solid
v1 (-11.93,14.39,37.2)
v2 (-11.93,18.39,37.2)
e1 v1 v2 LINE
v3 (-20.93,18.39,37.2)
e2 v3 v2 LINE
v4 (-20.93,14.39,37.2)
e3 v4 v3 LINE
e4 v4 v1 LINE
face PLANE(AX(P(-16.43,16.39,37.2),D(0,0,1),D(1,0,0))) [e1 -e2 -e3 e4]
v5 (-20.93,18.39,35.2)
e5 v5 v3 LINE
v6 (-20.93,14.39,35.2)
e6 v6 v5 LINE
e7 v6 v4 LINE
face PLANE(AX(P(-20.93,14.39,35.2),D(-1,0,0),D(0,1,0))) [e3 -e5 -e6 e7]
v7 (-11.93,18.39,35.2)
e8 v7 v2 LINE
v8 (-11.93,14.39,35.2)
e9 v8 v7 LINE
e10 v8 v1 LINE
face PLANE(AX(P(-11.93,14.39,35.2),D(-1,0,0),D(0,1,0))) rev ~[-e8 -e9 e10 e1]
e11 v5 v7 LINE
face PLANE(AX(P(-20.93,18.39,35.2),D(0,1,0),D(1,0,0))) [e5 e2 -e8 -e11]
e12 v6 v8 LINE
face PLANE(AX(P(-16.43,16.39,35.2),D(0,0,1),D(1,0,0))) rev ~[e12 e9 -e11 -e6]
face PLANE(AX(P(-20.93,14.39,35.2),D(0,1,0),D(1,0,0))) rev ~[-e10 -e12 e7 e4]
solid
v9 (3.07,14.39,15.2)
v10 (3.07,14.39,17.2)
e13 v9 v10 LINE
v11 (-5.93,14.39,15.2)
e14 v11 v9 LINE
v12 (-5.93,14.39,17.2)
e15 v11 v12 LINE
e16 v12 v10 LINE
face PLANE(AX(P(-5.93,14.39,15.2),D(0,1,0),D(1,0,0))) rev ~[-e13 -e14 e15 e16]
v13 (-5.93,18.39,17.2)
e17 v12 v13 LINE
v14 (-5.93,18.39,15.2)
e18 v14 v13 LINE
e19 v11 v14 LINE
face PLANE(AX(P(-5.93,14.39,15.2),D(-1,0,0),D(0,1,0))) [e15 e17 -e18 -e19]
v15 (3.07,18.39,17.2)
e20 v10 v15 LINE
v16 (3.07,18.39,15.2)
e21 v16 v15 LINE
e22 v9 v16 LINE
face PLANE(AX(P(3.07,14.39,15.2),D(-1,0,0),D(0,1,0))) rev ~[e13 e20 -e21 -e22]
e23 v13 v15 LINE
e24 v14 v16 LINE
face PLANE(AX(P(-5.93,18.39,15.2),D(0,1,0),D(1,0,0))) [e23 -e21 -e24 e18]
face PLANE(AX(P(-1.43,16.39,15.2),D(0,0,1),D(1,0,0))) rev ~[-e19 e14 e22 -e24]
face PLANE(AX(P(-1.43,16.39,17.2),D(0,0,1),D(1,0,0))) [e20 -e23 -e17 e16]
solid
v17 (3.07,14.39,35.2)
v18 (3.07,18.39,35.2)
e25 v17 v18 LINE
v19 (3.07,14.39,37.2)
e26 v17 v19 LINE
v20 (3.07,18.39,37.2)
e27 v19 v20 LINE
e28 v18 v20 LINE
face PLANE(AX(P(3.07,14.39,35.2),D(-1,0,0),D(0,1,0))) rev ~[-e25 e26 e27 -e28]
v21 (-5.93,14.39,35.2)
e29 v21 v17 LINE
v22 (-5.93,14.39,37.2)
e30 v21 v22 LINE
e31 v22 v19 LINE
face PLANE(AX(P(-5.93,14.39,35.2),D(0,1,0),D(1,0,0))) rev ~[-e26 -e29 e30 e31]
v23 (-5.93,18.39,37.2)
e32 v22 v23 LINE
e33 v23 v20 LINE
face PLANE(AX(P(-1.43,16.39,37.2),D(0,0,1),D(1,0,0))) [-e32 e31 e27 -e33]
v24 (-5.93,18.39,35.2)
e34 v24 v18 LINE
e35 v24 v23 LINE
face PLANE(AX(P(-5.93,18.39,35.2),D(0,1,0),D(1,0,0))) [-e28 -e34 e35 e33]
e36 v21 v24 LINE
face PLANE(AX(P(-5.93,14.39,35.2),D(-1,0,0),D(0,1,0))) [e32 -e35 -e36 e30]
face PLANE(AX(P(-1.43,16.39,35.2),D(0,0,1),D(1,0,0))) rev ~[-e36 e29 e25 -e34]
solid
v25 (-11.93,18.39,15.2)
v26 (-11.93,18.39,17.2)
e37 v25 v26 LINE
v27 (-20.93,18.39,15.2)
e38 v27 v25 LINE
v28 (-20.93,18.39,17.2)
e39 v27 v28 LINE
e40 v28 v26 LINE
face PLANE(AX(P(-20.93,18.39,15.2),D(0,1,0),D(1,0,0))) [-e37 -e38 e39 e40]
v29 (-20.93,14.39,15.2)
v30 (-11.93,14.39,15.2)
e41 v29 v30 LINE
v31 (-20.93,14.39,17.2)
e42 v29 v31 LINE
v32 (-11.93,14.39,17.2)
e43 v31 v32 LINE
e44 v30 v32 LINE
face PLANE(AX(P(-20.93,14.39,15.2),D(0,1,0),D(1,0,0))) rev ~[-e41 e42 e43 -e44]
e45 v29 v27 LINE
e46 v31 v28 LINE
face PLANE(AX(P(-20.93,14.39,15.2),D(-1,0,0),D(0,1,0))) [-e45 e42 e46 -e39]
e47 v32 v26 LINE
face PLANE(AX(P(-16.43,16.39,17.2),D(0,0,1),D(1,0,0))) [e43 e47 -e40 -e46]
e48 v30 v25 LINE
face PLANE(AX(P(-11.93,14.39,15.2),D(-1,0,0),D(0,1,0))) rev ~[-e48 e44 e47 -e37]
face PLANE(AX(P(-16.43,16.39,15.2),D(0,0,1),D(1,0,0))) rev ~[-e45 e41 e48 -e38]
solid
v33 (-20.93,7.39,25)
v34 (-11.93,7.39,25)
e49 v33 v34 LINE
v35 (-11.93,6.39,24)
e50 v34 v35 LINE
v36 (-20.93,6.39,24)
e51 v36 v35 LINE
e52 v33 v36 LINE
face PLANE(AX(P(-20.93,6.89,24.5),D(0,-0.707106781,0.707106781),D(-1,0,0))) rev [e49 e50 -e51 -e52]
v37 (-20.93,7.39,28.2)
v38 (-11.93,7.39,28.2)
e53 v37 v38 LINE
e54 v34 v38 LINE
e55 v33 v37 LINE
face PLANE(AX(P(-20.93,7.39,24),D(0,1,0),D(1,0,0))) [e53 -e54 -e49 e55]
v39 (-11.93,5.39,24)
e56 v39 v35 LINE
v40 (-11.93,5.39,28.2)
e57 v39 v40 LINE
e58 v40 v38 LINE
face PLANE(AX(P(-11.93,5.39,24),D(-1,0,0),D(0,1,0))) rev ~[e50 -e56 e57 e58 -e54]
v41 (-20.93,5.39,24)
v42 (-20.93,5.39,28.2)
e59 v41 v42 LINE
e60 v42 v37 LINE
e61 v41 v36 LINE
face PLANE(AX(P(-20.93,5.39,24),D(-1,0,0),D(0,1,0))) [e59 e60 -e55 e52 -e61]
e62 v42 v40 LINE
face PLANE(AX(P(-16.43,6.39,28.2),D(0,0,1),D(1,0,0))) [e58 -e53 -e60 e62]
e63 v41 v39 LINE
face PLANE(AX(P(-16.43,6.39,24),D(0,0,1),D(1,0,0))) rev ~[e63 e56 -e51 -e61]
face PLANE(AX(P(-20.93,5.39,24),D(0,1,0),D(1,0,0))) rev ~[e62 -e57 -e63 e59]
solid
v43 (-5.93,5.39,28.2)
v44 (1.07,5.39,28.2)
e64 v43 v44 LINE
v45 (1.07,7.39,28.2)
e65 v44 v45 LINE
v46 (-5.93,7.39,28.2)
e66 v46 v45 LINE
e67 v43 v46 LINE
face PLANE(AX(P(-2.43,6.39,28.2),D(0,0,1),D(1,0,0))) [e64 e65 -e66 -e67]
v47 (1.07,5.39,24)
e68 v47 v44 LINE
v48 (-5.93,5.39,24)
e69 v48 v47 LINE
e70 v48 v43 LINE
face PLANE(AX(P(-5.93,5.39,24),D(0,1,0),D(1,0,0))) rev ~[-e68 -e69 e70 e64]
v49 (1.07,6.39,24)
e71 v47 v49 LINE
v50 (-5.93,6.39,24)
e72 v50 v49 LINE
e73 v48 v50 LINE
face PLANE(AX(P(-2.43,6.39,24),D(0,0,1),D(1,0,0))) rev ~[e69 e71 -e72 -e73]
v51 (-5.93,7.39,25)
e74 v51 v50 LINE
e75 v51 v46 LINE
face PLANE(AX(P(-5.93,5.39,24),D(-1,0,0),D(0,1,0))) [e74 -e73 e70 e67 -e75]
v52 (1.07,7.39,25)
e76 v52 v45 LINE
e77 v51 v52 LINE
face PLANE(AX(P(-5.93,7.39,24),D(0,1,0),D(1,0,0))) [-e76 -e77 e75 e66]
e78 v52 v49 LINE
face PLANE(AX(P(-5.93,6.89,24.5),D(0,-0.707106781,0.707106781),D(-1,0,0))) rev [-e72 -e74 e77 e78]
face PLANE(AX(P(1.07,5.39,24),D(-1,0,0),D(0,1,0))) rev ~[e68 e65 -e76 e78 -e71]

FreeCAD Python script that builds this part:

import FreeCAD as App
import Part
import Sketcher

V = App.Vector


def edges_at(feature, points):
    """Names of the edges that pass closest to the given points."""
    edges = feature.Shape.Edges
    near = lambda p: min(range(len(edges)), key=lambda i: edges[i].distToShape(Part.Vertex(*p))[0])
    return sorted({f"Edge{near(p) + 1}" for p in points})

doc = App.newDocument("Part")
params = doc.addObject("Spreadsheet::Sheet", "Params")
for row, (alias, value) in enumerate([
    ("sketch1_width", "7 mm"),
    ("sketch1_height", "2 mm"),
    ("pad1_length", "4.2 mm"),
    ("chamfer_size", "1 mm"),
    ("sketch2_width", "9 mm"),
    ("sketch2_height", "4 mm"),
    ("pad2_length", "2 mm"),
    ("sketch3_width", "9 mm"),
    ("sketch3_height", "4 mm"),
    ("pad3_length", "2 mm"),
    ("sketch4_width", "9 mm"),
    ("sketch4_height", "4 mm"),
    ("pad4_length", "2 mm"),
    ("sketch5_width", "9 mm"),
    ("sketch5_height", "4 mm"),
    ("pad5_length", "2 mm"),
    ("sketch6_width", "9 mm"),
    ("sketch6_height", "2 mm"),
    ("pad6_length", "4.2 mm"),
    ("chamfer2_size", "1 mm"),
], start=1):
    params.set(f"A{row}", alias)
    params.set(f"B{row}", "=" + value)
    params.setAlias(f"B{row}", alias)

body = doc.addObject("PartDesign::Body", "Body")

# Sketch on XY plane
sketch1 = doc.addObject("Sketcher::SketchObject", "Sketch")
body.addObject(sketch1)
sketch1.AttachmentSupport = (doc.XY_Plane, [""])
sketch1.MapMode = "FlatFace"
sketch1.AttachmentOffset = App.Placement(V(0, 0, 24), App.Rotation())
sketch1.addGeometry([
    Part.LineSegment(V(-5.93, 7.39, 0), V(-5.93, 5.39, 0)),
    Part.LineSegment(V(-5.93, 5.39, 0), V(1.07, 5.39, 0)),
    Part.LineSegment(V(1.07, 5.39, 0), V(1.07, 7.39, 0)),
    Part.LineSegment(V(1.07, 7.39, 0), V(-5.93, 7.39, 0)),
], False)
sketch1.addConstraint([
    Sketcher.Constraint("Coincident", 0, 2, 1, 1),
    Sketcher.Constraint("Coincident", 1, 2, 2, 1),
    Sketcher.Constraint("Coincident", 2, 2, 3, 1),
    Sketcher.Constraint("Coincident", 3, 2, 0, 1),
    Sketcher.Constraint("Vertical", 0),
    Sketcher.Constraint("Horizontal", 1),
    Sketcher.Constraint("Vertical", 2),
    Sketcher.Constraint("Horizontal", 3),
    Sketcher.Constraint("DistanceX", 1, 1, 1, 2, 7.0),
    Sketcher.Constraint("DistanceY", 0, 2, 0, 1, 2.0),
    Sketcher.Constraint("DistanceX", 0, 2, -1, 1, 5.93),
    Sketcher.Constraint("DistanceY", -1, 1, 0, 2, 5.39),
])
sketch1.setExpression("Constraints[8]", "Params.sketch1_width")
sketch1.setExpression("Constraints[9]", "Params.sketch1_height")
pad1 = doc.addObject("PartDesign::Pad", "Pad")
body.addObject(pad1)
pad1.Profile = sketch1
pad1.setExpression("Length", "Params.pad1_length")
doc.recompute()

chamfer = doc.addObject("PartDesign::Chamfer", "Chamfer")
body.addObject(chamfer)
chamfer.Base = (pad1, edges_at(pad1, [(-2.43, 7.39, 24)]))
chamfer.setExpression("Size", "Params.chamfer_size")
body2 = doc.addObject("PartDesign::Body", "Body001")

# Sketch on XY plane
sketch2 = doc.addObject("Sketcher::SketchObject", "Sketch001")
body2.addObject(sketch2)
sketch2.AttachmentSupport = (doc.getObject("XY_Plane001"), [""])
sketch2.MapMode = "FlatFace"
sketch2.AttachmentOffset = App.Placement(V(0, 0, 35.2), App.Rotation())
sketch2.addGeometry([
    Part.LineSegment(V(-20.93, 18.39, 0), V(-20.93, 14.39, 0)),
    Part.LineSegment(V(-20.93, 14.39, 0), V(-11.93, 14.39, 0)),
    Part.LineSegment(V(-11.93, 14.39, 0), V(-11.93, 18.39, 0)),
    Part.LineSegment(V(-11.93, 18.39, 0), V(-20.93, 18.39, 0)),
], False)
sketch2.addConstraint([
    Sketcher.Constraint("Coincident", 0, 2, 1, 1),
    Sketcher.Constraint("Coincident", 1, 2, 2, 1),
    Sketcher.Constraint("Coincident", 2, 2, 3, 1),
    Sketcher.Constraint("Coincident", 3, 2, 0, 1),
    Sketcher.Constraint("Vertical", 0),
    Sketcher.Constraint("Horizontal", 1),
    Sketcher.Constraint("Vertical", 2),
    Sketcher.Constraint("Horizontal", 3),
    Sketcher.Constraint("DistanceX", 1, 1, 1, 2, 9.0),
    Sketcher.Constraint("DistanceY", 0, 2, 0, 1, 4.0),
    Sketcher.Constraint("DistanceX", 0, 2, -1, 1, 20.93),
    Sketcher.Constraint("DistanceY", -1, 1, 0, 2, 14.39),
])
sketch2.setExpression("Constraints[8]", "Params.sketch2_width")
sketch2.setExpression("Constraints[9]", "Params.sketch2_height")
pad2 = doc.addObject("PartDesign::Pad", "Pad001")
body2.addObject(pad2)
pad2.Profile = sketch2
pad2.setExpression("Length", "Params.pad2_length")
body3 = doc.addObject("PartDesign::Body", "Body002")

# Sketch on XY plane
sketch3 = doc.addObject("Sketcher::SketchObject", "Sketch002")
body3.addObject(sketch3)
sketch3.AttachmentSupport = (doc.getObject("XY_Plane002"), [""])
sketch3.MapMode = "FlatFace"
sketch3.AttachmentOffset = App.Placement(V(0, 0, 35.2), App.Rotation())
sketch3.addGeometry([
    Part.LineSegment(V(-5.93, 18.39, 0), V(-5.93, 14.39, 0)),
    Part.LineSegment(V(-5.93, 14.39, 0), V(3.07, 14.39, 0)),
    Part.LineSegment(V(3.07, 14.39, 0), V(3.07, 18.39, 0)),
    Part.LineSegment(V(3.07, 18.39, 0), V(-5.93, 18.39, 0)),
], False)
sketch3.addConstraint([
    Sketcher.Constraint("Coincident", 0, 2, 1, 1),
    Sketcher.Constraint("Coincident", 1, 2, 2, 1),
    Sketcher.Constraint("Coincident", 2, 2, 3, 1),
    Sketcher.Constraint("Coincident", 3, 2, 0, 1),
    Sketcher.Constraint("Vertical", 0),
    Sketcher.Constraint("Horizontal", 1),
    Sketcher.Constraint("Vertical", 2),
    Sketcher.Constraint("Horizontal", 3),
    Sketcher.Constraint("DistanceX", 1, 1, 1, 2, 9.0),
    Sketcher.Constraint("DistanceY", 0, 2, 0, 1, 4.0),
    Sketcher.Constraint("DistanceX", 0, 2, -1, 1, 5.93),
    Sketcher.Constraint("DistanceY", -1, 1, 0, 2, 14.39),
])
sketch3.setExpression("Constraints[8]", "Params.sketch3_width")
sketch3.setExpression("Constraints[9]", "Params.sketch3_height")
pad3 = doc.addObject("PartDesign::Pad", "Pad002")
body3.addObject(pad3)
pad3.Profile = sketch3
pad3.setExpression("Length", "Params.pad3_length")
body4 = doc.addObject("PartDesign::Body", "Body003")

# Sketch on XY plane
sketch4 = doc.addObject("Sketcher::SketchObject", "Sketch003")
body4.addObject(sketch4)
sketch4.AttachmentSupport = (doc.getObject("XY_Plane003"), [""])
sketch4.MapMode = "FlatFace"
sketch4.AttachmentOffset = App.Placement(V(0, 0, 15.2), App.Rotation())
sketch4.addGeometry([
    Part.LineSegment(V(-5.93, 18.39, 0), V(-5.93, 14.39, 0)),
    Part.LineSegment(V(-5.93, 14.39, 0), V(3.07, 14.39, 0)),
    Part.LineSegment(V(3.07, 14.39, 0), V(3.07, 18.39, 0)),
    Part.LineSegment(V(3.07, 18.39, 0), V(-5.93, 18.39, 0)),
], False)
sketch4.addConstraint([
    Sketcher.Constraint("Coincident", 0, 2, 1, 1),
    Sketcher.Constraint("Coincident", 1, 2, 2, 1),
    Sketcher.Constraint("Coincident", 2, 2, 3, 1),
    Sketcher.Constraint("Coincident", 3, 2, 0, 1),
    Sketcher.Constraint("Vertical", 0),
    Sketcher.Constraint("Horizontal", 1),
    Sketcher.Constraint("Vertical", 2),
    Sketcher.Constraint("Horizontal", 3),
    Sketcher.Constraint("DistanceX", 1, 1, 1, 2, 9.0),
    Sketcher.Constraint("DistanceY", 0, 2, 0, 1, 4.0),
    Sketcher.Constraint("DistanceX", 0, 2, -1, 1, 5.93),
    Sketcher.Constraint("DistanceY", -1, 1, 0, 2, 14.39),
])
sketch4.setExpression("Constraints[8]", "Params.sketch4_width")
sketch4.setExpression("Constraints[9]", "Params.sketch4_height")
pad4 = doc.addObject("PartDesign::Pad", "Pad003")
body4.addObject(pad4)
pad4.Profile = sketch4
pad4.setExpression("Length", "Params.pad4_length")
body5 = doc.addObject("PartDesign::Body", "Body004")

# Sketch on XY plane
sketch5 = doc.addObject("Sketcher::SketchObject", "Sketch004")
body5.addObject(sketch5)
sketch5.AttachmentSupport = (doc.getObject("XY_Plane004"), [""])
sketch5.MapMode = "FlatFace"
sketch5.AttachmentOffset = App.Placement(V(0, 0, 15.2), App.Rotation())
sketch5.addGeometry([
    Part.LineSegment(V(-20.93, 18.39, 0), V(-20.93, 14.39, 0)),
    Part.LineSegment(V(-20.93, 14.39, 0), V(-11.93, 14.39, 0)),
    Part.LineSegment(V(-11.93, 14.39, 0), V(-11.93, 18.39, 0)),
    Part.LineSegment(V(-11.93, 18.39, 0), V(-20.93, 18.39, 0)),
], False)
sketch5.addConstraint([
    Sketcher.Constraint("Coincident", 0, 2, 1, 1),
    Sketcher.Constraint("Coincident", 1, 2, 2, 1),
    Sketcher.Constraint("Coincident", 2, 2, 3, 1),
    Sketcher.Constraint("Coincident", 3, 2, 0, 1),
    Sketcher.Constraint("Vertical", 0),
    Sketcher.Constraint("Horizontal", 1),
    Sketcher.Constraint("Vertical", 2),
    Sketcher.Constraint("Horizontal", 3),
    Sketcher.Constraint("DistanceX", 1, 1, 1, 2, 9.0),
    Sketcher.Constraint("DistanceY", 0, 2, 0, 1, 4.0),
    Sketcher.Constraint("DistanceX", 0, 2, -1, 1, 20.93),
    Sketcher.Constraint("DistanceY", -1, 1, 0, 2, 14.39),
])
sketch5.setExpression("Constraints[8]", "Params.sketch5_width")
sketch5.setExpression("Constraints[9]", "Params.sketch5_height")
pad5 = doc.addObject("PartDesign::Pad", "Pad004")
body5.addObject(pad5)
pad5.Profile = sketch5
pad5.setExpression("Length", "Params.pad5_length")
body6 = doc.addObject("PartDesign::Body", "Body005")
body6.AllowCompound = True

# Sketch on XY plane
sketch6 = doc.addObject("Sketcher::SketchObject", "Sketch005")
body6.addObject(sketch6)
sketch6.AttachmentSupport = (doc.getObject("XY_Plane005"), [""])
sketch6.MapMode = "FlatFace"
sketch6.AttachmentOffset = App.Placement(V(0, 0, 24), App.Rotation())
sketch6.addGeometry([
    Part.LineSegment(V(-20.93, 7.39, 0), V(-20.93, 5.39, 0)),
    Part.LineSegment(V(-20.93, 5.39, 0), V(-11.93, 5.39, 0)),
    Part.LineSegment(V(-11.93, 5.39, 0), V(-11.93, 7.39, 0)),
    Part.LineSegment(V(-11.93, 7.39, 0), V(-20.93, 7.39, 0)),
], False)
sketch6.addConstraint([
    Sketcher.Constraint("Coincident", 0, 2, 1, 1),
    Sketcher.Constraint("Coincident", 1, 2, 2, 1),
    Sketcher.Constraint("Coincident", 2, 2, 3, 1),
    Sketcher.Constraint("Coincident", 3, 2, 0, 1),
    Sketcher.Constraint("Vertical", 0),
    Sketcher.Constraint("Horizontal", 1),
    Sketcher.Constraint("Vertical", 2),
    Sketcher.Constraint("Horizontal", 3),
    Sketcher.Constraint("DistanceX", 1, 1, 1, 2, 9.0),
    Sketcher.Constraint("DistanceY", 0, 2, 0, 1, 2.0),
    Sketcher.Constraint("DistanceX", 0, 2, -1, 1, 20.93),
    Sketcher.Constraint("DistanceY", -1, 1, 0, 2, 5.39),
])
sketch6.setExpression("Constraints[8]", "Params.sketch6_width")
sketch6.setExpression("Constraints[9]", "Params.sketch6_height")
pad6 = doc.addObject("PartDesign::Pad", "Pad005")
body6.addObject(pad6)
pad6.Profile = sketch6
pad6.setExpression("Length", "Params.pad6_length")
doc.recompute()

chamfer2 = doc.addObject("PartDesign::Chamfer", "Chamfer001")
body6.addObject(chamfer2)
chamfer2.Base = (pad6, edges_at(pad6, [(-16.43, 7.39, 24)]))
chamfer2.setExpression("Size", "Params.chamfer2_size")
doc.recompute()

boolean = doc.addObject("PartDesign::Boolean", "Boolean")
body6.addObject(boolean)
boolean.Type = "Fuse"
boolean.addObjects([body])
doc.recompute()

boolean2 = doc.addObject("PartDesign::Boolean", "Boolean001")
body6.addObject(boolean2)
boolean2.Type = "Fuse"
boolean2.addObjects([body2])
doc.recompute()

boolean3 = doc.addObject("PartDesign::Boolean", "Boolean002")
body6.addObject(boolean3)
boolean3.Type = "Fuse"
boolean3.addObjects([body3])
doc.recompute()

boolean4 = doc.addObject("PartDesign::Boolean", "Boolean003")
body6.addObject(boolean4)
boolean4.Type = "Fuse"
boolean4.addObjects([body4])
doc.recompute()

boolean5 = doc.addObject("PartDesign::Boolean", "Boolean004")
body6.addObject(boolean5)
boolean5.Type = "Fuse"
boolean5.addObjects([body5])

doc.recompute()
